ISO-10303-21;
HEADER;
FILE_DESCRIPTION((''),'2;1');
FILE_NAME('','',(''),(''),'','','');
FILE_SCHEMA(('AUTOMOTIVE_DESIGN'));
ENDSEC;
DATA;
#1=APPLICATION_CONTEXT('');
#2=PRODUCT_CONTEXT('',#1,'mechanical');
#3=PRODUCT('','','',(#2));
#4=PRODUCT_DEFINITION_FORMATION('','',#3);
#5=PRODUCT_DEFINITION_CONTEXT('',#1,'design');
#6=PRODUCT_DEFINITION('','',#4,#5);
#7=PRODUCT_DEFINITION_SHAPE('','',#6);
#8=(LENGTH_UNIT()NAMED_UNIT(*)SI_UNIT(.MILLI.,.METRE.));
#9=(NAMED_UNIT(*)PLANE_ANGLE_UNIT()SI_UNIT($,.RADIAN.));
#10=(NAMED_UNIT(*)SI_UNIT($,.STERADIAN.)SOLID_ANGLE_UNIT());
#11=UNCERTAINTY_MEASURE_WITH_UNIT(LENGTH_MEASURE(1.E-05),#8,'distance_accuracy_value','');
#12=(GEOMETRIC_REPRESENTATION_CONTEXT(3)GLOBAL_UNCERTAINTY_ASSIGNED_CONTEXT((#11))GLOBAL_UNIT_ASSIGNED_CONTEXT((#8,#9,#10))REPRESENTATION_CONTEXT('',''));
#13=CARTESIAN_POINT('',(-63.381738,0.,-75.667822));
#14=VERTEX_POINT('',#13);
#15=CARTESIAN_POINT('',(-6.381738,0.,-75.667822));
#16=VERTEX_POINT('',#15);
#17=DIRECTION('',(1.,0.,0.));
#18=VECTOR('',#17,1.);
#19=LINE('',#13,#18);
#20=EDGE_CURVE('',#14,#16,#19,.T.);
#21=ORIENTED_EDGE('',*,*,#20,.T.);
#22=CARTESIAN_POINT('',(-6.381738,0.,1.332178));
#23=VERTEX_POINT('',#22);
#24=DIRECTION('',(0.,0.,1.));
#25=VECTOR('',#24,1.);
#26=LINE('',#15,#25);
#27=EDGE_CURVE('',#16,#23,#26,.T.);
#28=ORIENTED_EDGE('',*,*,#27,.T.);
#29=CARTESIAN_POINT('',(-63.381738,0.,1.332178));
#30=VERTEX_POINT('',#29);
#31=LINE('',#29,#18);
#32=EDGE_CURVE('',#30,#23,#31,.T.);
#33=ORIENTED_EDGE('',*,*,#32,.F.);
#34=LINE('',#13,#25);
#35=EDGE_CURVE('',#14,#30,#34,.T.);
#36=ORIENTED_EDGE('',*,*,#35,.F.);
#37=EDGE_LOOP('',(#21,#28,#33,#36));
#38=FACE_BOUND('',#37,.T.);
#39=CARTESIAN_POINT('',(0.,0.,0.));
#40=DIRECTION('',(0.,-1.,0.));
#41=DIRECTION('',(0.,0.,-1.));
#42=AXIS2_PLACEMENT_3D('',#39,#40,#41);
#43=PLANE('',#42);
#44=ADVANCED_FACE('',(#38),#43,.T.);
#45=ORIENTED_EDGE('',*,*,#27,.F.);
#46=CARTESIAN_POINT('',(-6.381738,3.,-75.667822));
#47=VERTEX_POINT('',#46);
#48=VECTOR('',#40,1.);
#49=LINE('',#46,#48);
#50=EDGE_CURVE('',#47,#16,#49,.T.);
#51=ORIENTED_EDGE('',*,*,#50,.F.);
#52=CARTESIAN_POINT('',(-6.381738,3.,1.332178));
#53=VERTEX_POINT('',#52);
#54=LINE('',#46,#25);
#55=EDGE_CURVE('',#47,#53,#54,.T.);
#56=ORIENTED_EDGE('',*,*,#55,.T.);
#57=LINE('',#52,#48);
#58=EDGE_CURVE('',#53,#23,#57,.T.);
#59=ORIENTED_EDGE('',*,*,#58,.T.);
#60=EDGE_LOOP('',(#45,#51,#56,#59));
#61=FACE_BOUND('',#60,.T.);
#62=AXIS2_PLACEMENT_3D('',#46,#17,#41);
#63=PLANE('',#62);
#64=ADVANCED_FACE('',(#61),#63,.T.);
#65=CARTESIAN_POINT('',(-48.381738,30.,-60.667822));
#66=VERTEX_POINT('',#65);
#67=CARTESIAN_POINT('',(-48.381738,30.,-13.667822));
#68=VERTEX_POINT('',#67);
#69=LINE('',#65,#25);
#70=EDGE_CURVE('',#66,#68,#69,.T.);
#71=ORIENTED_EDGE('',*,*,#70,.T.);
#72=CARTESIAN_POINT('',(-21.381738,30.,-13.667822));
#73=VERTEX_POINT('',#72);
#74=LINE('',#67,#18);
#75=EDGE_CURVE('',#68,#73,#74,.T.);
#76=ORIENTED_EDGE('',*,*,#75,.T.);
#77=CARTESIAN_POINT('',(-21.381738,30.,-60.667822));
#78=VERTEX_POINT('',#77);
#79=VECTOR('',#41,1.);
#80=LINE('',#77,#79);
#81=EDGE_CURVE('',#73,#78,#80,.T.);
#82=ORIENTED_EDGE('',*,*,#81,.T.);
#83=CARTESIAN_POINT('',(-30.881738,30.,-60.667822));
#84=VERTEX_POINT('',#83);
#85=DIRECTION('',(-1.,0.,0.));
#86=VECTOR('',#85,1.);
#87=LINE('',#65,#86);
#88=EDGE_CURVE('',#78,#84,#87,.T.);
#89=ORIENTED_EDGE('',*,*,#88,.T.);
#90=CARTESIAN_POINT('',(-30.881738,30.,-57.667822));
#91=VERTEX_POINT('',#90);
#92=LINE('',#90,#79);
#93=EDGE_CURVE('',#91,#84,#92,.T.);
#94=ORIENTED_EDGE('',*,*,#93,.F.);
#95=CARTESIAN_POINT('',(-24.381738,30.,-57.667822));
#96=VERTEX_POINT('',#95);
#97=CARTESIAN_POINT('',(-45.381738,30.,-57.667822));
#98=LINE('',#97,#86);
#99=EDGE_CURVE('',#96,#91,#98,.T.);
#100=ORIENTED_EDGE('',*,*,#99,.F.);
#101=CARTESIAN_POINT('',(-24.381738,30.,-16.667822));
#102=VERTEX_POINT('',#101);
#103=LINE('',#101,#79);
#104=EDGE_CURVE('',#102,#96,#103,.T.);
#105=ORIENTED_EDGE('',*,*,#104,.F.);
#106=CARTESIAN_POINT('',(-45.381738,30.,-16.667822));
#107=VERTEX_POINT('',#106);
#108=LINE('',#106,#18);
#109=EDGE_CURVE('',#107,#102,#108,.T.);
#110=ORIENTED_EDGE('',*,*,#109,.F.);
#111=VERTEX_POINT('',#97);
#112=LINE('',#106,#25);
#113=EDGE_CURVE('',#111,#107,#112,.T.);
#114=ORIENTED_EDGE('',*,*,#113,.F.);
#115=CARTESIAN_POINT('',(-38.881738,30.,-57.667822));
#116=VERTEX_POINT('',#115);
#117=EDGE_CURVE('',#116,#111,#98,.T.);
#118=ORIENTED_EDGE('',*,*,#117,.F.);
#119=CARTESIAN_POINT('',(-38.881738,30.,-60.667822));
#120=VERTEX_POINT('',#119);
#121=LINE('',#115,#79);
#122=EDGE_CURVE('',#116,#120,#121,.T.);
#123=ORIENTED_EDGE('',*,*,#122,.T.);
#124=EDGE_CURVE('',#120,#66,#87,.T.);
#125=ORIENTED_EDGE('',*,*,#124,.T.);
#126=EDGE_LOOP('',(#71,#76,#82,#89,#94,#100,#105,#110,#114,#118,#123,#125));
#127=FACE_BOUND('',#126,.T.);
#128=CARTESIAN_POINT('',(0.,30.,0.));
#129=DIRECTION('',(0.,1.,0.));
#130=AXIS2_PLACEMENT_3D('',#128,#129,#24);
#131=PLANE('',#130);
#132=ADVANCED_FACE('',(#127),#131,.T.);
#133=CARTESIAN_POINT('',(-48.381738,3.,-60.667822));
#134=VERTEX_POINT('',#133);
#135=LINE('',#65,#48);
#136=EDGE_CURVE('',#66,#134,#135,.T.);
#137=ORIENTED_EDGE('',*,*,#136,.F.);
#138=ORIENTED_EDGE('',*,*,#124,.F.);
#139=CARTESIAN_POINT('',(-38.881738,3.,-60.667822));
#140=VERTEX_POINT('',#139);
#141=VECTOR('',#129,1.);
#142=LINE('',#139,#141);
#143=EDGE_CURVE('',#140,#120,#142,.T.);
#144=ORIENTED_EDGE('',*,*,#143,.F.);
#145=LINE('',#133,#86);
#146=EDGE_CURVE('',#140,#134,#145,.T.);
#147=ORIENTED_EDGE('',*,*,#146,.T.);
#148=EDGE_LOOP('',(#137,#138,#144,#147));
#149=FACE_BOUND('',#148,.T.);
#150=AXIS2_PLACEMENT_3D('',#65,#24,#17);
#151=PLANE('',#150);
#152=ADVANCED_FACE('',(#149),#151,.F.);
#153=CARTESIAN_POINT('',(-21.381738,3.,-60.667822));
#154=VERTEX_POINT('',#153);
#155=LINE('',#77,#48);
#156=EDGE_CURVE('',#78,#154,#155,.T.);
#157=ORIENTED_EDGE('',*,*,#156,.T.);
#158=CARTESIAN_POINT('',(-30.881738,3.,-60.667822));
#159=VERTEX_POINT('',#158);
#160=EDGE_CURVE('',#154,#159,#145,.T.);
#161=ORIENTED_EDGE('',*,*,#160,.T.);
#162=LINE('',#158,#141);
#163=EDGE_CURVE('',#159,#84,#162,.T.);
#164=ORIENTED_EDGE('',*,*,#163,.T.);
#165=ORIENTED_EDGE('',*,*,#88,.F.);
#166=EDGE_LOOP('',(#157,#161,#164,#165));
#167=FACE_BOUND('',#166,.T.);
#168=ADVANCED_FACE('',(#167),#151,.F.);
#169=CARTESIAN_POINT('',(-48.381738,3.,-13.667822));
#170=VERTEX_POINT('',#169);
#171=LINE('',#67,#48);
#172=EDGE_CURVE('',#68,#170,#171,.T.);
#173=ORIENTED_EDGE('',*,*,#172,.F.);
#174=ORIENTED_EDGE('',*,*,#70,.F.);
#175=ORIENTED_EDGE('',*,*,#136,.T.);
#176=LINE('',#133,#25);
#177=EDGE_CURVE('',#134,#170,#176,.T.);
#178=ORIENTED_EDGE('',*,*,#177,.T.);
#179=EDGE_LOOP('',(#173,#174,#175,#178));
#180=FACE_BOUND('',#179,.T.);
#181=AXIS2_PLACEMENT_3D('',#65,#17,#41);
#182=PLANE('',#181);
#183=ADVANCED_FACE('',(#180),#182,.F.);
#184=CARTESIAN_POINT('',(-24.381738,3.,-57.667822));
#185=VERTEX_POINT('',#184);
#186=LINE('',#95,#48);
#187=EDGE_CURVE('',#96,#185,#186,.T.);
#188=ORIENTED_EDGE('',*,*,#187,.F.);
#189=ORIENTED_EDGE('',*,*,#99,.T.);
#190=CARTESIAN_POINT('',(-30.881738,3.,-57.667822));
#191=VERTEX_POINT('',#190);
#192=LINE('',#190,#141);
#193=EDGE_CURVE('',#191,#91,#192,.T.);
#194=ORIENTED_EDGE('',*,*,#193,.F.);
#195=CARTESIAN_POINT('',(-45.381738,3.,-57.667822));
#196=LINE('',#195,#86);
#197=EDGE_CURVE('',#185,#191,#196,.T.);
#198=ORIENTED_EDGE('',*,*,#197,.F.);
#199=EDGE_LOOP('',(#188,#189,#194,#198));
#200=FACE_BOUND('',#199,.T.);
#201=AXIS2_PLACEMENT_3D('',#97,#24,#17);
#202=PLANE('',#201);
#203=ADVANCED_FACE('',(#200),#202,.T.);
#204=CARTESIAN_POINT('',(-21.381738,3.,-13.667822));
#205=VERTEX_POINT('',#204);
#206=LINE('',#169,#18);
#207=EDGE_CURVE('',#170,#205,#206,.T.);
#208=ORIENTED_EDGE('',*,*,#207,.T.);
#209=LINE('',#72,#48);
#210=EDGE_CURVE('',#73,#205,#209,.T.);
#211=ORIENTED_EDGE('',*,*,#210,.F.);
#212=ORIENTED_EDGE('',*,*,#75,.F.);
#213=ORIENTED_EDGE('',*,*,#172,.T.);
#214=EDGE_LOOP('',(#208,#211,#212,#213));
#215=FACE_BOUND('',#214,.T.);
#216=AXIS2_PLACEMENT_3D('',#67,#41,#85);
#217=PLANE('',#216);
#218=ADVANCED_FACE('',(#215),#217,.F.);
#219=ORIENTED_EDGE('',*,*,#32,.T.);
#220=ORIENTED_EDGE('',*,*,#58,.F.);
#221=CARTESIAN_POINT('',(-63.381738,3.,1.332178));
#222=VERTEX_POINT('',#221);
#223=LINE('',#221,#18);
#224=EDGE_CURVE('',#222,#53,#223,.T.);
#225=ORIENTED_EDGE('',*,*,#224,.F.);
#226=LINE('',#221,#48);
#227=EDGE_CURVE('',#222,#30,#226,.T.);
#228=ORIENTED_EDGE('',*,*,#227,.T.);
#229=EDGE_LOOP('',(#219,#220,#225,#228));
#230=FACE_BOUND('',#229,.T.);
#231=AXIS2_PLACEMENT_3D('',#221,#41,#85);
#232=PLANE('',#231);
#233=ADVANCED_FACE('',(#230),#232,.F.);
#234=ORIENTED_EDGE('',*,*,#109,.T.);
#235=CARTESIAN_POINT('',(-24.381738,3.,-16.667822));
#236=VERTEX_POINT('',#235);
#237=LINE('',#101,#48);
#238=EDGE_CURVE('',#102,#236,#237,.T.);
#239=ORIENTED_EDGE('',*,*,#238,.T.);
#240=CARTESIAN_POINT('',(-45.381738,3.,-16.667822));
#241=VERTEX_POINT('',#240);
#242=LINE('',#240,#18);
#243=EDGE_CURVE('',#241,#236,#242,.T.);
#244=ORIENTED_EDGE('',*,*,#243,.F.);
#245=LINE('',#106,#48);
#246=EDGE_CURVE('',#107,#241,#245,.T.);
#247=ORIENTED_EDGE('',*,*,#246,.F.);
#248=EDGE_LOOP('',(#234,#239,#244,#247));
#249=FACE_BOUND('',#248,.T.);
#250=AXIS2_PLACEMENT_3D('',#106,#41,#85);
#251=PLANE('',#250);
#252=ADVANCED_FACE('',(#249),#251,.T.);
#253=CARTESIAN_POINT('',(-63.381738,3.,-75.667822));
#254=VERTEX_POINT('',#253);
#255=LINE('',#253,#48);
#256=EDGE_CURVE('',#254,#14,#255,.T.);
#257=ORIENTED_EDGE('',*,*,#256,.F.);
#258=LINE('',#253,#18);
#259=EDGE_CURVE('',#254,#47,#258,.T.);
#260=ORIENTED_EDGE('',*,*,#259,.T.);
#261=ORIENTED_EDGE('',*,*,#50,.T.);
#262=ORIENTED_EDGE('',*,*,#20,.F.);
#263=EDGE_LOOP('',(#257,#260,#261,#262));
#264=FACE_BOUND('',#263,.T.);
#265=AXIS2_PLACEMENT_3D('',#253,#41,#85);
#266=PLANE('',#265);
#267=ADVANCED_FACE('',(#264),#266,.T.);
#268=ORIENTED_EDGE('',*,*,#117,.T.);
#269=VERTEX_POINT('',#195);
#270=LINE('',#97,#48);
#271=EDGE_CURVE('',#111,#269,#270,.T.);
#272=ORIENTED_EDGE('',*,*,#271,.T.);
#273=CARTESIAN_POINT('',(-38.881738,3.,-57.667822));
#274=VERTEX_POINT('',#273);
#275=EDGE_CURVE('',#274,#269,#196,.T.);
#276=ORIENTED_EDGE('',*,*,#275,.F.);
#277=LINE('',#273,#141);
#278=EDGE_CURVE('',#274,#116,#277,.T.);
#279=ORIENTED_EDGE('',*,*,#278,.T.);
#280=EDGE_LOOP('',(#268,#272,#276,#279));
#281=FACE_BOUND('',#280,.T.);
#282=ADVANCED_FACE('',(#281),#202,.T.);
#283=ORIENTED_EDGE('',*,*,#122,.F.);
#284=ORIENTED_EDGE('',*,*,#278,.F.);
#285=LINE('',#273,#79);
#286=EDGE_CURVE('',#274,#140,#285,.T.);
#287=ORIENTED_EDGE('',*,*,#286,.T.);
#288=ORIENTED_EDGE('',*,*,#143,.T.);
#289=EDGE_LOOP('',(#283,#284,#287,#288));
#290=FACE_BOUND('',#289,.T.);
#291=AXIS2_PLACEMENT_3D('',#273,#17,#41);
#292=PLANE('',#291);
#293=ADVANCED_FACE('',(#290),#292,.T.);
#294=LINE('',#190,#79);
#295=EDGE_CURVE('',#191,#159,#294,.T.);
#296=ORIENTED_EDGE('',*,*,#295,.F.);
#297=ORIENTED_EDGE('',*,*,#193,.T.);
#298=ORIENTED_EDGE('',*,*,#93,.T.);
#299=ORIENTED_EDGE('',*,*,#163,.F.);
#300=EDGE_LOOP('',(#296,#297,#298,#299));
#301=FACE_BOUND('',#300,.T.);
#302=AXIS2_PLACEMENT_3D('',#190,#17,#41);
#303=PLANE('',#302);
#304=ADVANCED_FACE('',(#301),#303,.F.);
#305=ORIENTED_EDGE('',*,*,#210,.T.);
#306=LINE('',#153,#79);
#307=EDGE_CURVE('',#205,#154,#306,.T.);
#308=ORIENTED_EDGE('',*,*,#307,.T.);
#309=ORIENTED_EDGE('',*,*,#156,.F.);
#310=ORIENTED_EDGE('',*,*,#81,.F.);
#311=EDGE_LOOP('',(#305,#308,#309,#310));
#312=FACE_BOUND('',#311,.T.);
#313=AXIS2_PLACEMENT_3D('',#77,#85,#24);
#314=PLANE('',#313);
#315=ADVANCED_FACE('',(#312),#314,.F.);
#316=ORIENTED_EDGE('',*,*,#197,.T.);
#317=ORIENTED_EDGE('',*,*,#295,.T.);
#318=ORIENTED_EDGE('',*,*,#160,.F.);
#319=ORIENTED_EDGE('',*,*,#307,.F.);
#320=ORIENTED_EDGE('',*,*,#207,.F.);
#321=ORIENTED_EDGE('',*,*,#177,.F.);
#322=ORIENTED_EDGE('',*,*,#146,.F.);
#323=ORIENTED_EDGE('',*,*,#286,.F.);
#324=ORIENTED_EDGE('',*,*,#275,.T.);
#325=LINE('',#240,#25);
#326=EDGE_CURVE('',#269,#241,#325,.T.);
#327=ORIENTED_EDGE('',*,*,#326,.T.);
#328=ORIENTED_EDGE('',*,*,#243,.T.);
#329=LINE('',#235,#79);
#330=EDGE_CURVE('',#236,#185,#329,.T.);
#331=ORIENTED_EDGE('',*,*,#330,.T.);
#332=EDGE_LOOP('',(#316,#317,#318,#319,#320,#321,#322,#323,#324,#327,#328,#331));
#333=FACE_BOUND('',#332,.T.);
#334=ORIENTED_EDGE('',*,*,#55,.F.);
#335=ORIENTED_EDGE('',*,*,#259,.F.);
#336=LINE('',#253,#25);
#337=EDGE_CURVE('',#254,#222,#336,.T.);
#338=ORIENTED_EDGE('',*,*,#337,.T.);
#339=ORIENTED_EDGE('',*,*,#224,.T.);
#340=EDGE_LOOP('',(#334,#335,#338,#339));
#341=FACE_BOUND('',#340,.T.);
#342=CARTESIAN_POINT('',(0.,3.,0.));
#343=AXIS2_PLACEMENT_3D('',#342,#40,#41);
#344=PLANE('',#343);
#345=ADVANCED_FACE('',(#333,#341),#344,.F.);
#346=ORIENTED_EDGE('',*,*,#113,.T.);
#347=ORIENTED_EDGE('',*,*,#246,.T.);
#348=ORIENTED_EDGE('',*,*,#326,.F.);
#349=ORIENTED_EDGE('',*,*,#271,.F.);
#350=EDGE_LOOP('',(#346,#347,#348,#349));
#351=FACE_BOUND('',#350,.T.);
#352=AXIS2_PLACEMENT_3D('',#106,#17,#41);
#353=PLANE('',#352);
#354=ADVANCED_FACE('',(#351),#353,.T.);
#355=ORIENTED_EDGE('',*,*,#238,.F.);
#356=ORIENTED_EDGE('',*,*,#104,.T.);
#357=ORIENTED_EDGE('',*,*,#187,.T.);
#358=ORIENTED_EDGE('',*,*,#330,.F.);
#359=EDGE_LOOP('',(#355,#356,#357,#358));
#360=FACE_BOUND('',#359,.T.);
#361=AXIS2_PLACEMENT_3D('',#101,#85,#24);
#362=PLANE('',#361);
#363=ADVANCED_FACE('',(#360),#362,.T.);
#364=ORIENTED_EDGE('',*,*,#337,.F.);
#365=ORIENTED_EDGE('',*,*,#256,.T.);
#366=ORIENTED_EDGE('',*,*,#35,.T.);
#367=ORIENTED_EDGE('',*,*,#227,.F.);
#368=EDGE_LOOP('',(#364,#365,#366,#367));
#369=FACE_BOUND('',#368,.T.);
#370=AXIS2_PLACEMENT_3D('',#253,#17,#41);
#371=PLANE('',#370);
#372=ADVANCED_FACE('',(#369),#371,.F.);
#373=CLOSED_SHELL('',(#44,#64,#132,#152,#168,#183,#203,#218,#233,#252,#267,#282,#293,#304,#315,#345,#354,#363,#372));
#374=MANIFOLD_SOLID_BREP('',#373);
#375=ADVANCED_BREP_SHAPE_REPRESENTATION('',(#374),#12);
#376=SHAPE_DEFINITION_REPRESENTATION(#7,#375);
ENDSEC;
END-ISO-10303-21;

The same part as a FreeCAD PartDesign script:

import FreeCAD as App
import Part
import Sketcher
from FreeCAD import Vector


def add_polygon(sketch, points):
    """Adds a closed chain of lines whose ends are joined by coincident constraints."""
    first, n = sketch.GeometryCount, len(points)
    for a, b in zip(points, points[1:] + points[:1]):
        sketch.addGeometry(Part.LineSegment(App.Vector(*a, 0), App.Vector(*b, 0)), False)
    for i in range(n):
        sketch.addConstraint(Sketcher.Constraint("Coincident", first + i, 2, first + (i + 1) % n, 1))

doc = App.newDocument("Part")
body = doc.addObject("PartDesign::Body", "Body")

sketch1 = doc.addObject("Sketcher::SketchObject", "Sketch")
body.addObject(sketch1)
sketch1.AttachmentSupport = (doc.XZ_Plane, [""])
sketch1.MapMode = "FlatFace"
add_polygon(sketch1, [(-63, -76), (-63, 1), (-6, 1), (-6, -76)])
sketch1.addConstraint(Sketcher.Constraint("Vertical", 0))
sketch1.addConstraint(Sketcher.Constraint("Horizontal", 1))
sketch1.addConstraint(Sketcher.Constraint("Vertical", 2))
sketch1.addConstraint(Sketcher.Constraint("Horizontal", 3))
sketch1.addConstraint(Sketcher.Constraint("DistanceX", 1, 1, 1, 2, 57.0))
sketch1.addConstraint(Sketcher.Constraint("DistanceY", 0, 1, 0, 2, 77.0))
sketch1.addConstraint(Sketcher.Constraint("DistanceX", 0, 2, -1, 1, 63.381738))
sketch1.addConstraint(Sketcher.Constraint("DistanceY", -1, 1, 0, 2, 1.332178))
pad1 = doc.addObject("PartDesign::Pad", "Pad")
body.addObject(pad1)
pad1.Profile = sketch1
pad1.Length = 3
pad1.Reversed = True

sketch2 = doc.addObject("Sketcher::SketchObject", "Sketch001")
body.addObject(sketch2)
sketch2.AttachmentSupport = (doc.XZ_Plane, [""])
sketch2.MapMode = "FlatFace"
sketch2.AttachmentOffset = App.Placement(Vector(0, 0, -3), App.Rotation())
add_polygon(sketch2, [(-48, -61), (-48, -14), (-21, -14), (-21, -61)])
add_polygon(sketch2, [(-24, -17), (-45, -17), (-45, -58), (-24, -58)])
sketch2.addConstraint(Sketcher.Constraint("Vertical", 0))
sketch2.addConstraint(Sketcher.Constraint("Horizontal", 1))
sketch2.addConstraint(Sketcher.Constraint("Vertical", 2))
sketch2.addConstraint(Sketcher.Constraint("Horizontal", 3))
sketch2.addConstraint(Sketcher.Constraint("Horizontal", 4))
sketch2.addConstraint(Sketcher.Constraint("Vertical", 5))
sketch2.addConstraint(Sketcher.Constraint("Horizontal", 6))
sketch2.addConstraint(Sketcher.Constraint("Vertical", 7))
sketch2.addConstraint(Sketcher.Constraint("DistanceX", 1, 1, 1, 2, 27.0))
sketch2.addConstraint(Sketcher.Constraint("DistanceX", 4, 2, 4, 1, 21.0))
sketch2.addConstraint(Sketcher.Constraint("DistanceY", 0, 1, 0, 2, 47.0))
sketch2.addConstraint(Sketcher.Constraint("DistanceY", 5, 2, 5, 1, 41.0))
sketch2.addConstraint(Sketcher.Constraint("DistanceX", 0, 2, 4, 2, 3.0))
sketch2.addConstraint(Sketcher.Constraint("DistanceY", 4, 2, 0, 2, 3.0))
sketch2.addConstraint(Sketcher.Constraint("DistanceX", 0, 2, -1, 1, 48.381738))
sketch2.addConstraint(Sketcher.Constraint("DistanceY", 0, 2, -1, 1, 13.667822))
pad2 = doc.addObject("PartDesign::Pad", "Pad001")
body.addObject(pad2)
pad2.Profile = sketch2
pad2.Length = 27
pad2.Reversed = True

sketch3 = doc.addObject("Sketcher::SketchObject", "Sketch002")
body.addObject(sketch3)
sketch3.AttachmentSupport = (doc.XZ_Plane, [""])
sketch3.MapMode = "FlatFace"
sketch3.AttachmentOffset = App.Placement(Vector(0, 0, -30), App.Rotation())
add_polygon(sketch3, [(-38.9, -60.7), (-38.9, -57.7), (-30.9, -57.7), (-30.9, -60.7)])
sketch3.addConstraint(Sketcher.Constraint("Vertical", 0))
sketch3.addConstraint(Sketcher.Constraint("Horizontal", 1))
sketch3.addConstraint(Sketcher.Constraint("Vertical", 2))
sketch3.addConstraint(Sketcher.Constraint("Horizontal", 3))
sketch3.addConstraint(Sketcher.Constraint("DistanceX", 1, 1, 1, 2, 8.0))
sketch3.addConstraint(Sketcher.Constraint("DistanceY", 0, 1, 0, 2, 3.0))
sketch3.addConstraint(Sketcher.Constraint("DistanceX", 0, 2, -1, 1, 38.881738))
sketch3.addConstraint(Sketcher.Constraint("DistanceY", 0, 2, -1, 1, 57.667822))
pocket1 = doc.addObject("PartDesign::Pocket", "Pocket")
body.addObject(pocket1)
pocket1.Profile = sketch3
pocket1.Length = 27
pocket1.Reversed = True

doc.recompute()
